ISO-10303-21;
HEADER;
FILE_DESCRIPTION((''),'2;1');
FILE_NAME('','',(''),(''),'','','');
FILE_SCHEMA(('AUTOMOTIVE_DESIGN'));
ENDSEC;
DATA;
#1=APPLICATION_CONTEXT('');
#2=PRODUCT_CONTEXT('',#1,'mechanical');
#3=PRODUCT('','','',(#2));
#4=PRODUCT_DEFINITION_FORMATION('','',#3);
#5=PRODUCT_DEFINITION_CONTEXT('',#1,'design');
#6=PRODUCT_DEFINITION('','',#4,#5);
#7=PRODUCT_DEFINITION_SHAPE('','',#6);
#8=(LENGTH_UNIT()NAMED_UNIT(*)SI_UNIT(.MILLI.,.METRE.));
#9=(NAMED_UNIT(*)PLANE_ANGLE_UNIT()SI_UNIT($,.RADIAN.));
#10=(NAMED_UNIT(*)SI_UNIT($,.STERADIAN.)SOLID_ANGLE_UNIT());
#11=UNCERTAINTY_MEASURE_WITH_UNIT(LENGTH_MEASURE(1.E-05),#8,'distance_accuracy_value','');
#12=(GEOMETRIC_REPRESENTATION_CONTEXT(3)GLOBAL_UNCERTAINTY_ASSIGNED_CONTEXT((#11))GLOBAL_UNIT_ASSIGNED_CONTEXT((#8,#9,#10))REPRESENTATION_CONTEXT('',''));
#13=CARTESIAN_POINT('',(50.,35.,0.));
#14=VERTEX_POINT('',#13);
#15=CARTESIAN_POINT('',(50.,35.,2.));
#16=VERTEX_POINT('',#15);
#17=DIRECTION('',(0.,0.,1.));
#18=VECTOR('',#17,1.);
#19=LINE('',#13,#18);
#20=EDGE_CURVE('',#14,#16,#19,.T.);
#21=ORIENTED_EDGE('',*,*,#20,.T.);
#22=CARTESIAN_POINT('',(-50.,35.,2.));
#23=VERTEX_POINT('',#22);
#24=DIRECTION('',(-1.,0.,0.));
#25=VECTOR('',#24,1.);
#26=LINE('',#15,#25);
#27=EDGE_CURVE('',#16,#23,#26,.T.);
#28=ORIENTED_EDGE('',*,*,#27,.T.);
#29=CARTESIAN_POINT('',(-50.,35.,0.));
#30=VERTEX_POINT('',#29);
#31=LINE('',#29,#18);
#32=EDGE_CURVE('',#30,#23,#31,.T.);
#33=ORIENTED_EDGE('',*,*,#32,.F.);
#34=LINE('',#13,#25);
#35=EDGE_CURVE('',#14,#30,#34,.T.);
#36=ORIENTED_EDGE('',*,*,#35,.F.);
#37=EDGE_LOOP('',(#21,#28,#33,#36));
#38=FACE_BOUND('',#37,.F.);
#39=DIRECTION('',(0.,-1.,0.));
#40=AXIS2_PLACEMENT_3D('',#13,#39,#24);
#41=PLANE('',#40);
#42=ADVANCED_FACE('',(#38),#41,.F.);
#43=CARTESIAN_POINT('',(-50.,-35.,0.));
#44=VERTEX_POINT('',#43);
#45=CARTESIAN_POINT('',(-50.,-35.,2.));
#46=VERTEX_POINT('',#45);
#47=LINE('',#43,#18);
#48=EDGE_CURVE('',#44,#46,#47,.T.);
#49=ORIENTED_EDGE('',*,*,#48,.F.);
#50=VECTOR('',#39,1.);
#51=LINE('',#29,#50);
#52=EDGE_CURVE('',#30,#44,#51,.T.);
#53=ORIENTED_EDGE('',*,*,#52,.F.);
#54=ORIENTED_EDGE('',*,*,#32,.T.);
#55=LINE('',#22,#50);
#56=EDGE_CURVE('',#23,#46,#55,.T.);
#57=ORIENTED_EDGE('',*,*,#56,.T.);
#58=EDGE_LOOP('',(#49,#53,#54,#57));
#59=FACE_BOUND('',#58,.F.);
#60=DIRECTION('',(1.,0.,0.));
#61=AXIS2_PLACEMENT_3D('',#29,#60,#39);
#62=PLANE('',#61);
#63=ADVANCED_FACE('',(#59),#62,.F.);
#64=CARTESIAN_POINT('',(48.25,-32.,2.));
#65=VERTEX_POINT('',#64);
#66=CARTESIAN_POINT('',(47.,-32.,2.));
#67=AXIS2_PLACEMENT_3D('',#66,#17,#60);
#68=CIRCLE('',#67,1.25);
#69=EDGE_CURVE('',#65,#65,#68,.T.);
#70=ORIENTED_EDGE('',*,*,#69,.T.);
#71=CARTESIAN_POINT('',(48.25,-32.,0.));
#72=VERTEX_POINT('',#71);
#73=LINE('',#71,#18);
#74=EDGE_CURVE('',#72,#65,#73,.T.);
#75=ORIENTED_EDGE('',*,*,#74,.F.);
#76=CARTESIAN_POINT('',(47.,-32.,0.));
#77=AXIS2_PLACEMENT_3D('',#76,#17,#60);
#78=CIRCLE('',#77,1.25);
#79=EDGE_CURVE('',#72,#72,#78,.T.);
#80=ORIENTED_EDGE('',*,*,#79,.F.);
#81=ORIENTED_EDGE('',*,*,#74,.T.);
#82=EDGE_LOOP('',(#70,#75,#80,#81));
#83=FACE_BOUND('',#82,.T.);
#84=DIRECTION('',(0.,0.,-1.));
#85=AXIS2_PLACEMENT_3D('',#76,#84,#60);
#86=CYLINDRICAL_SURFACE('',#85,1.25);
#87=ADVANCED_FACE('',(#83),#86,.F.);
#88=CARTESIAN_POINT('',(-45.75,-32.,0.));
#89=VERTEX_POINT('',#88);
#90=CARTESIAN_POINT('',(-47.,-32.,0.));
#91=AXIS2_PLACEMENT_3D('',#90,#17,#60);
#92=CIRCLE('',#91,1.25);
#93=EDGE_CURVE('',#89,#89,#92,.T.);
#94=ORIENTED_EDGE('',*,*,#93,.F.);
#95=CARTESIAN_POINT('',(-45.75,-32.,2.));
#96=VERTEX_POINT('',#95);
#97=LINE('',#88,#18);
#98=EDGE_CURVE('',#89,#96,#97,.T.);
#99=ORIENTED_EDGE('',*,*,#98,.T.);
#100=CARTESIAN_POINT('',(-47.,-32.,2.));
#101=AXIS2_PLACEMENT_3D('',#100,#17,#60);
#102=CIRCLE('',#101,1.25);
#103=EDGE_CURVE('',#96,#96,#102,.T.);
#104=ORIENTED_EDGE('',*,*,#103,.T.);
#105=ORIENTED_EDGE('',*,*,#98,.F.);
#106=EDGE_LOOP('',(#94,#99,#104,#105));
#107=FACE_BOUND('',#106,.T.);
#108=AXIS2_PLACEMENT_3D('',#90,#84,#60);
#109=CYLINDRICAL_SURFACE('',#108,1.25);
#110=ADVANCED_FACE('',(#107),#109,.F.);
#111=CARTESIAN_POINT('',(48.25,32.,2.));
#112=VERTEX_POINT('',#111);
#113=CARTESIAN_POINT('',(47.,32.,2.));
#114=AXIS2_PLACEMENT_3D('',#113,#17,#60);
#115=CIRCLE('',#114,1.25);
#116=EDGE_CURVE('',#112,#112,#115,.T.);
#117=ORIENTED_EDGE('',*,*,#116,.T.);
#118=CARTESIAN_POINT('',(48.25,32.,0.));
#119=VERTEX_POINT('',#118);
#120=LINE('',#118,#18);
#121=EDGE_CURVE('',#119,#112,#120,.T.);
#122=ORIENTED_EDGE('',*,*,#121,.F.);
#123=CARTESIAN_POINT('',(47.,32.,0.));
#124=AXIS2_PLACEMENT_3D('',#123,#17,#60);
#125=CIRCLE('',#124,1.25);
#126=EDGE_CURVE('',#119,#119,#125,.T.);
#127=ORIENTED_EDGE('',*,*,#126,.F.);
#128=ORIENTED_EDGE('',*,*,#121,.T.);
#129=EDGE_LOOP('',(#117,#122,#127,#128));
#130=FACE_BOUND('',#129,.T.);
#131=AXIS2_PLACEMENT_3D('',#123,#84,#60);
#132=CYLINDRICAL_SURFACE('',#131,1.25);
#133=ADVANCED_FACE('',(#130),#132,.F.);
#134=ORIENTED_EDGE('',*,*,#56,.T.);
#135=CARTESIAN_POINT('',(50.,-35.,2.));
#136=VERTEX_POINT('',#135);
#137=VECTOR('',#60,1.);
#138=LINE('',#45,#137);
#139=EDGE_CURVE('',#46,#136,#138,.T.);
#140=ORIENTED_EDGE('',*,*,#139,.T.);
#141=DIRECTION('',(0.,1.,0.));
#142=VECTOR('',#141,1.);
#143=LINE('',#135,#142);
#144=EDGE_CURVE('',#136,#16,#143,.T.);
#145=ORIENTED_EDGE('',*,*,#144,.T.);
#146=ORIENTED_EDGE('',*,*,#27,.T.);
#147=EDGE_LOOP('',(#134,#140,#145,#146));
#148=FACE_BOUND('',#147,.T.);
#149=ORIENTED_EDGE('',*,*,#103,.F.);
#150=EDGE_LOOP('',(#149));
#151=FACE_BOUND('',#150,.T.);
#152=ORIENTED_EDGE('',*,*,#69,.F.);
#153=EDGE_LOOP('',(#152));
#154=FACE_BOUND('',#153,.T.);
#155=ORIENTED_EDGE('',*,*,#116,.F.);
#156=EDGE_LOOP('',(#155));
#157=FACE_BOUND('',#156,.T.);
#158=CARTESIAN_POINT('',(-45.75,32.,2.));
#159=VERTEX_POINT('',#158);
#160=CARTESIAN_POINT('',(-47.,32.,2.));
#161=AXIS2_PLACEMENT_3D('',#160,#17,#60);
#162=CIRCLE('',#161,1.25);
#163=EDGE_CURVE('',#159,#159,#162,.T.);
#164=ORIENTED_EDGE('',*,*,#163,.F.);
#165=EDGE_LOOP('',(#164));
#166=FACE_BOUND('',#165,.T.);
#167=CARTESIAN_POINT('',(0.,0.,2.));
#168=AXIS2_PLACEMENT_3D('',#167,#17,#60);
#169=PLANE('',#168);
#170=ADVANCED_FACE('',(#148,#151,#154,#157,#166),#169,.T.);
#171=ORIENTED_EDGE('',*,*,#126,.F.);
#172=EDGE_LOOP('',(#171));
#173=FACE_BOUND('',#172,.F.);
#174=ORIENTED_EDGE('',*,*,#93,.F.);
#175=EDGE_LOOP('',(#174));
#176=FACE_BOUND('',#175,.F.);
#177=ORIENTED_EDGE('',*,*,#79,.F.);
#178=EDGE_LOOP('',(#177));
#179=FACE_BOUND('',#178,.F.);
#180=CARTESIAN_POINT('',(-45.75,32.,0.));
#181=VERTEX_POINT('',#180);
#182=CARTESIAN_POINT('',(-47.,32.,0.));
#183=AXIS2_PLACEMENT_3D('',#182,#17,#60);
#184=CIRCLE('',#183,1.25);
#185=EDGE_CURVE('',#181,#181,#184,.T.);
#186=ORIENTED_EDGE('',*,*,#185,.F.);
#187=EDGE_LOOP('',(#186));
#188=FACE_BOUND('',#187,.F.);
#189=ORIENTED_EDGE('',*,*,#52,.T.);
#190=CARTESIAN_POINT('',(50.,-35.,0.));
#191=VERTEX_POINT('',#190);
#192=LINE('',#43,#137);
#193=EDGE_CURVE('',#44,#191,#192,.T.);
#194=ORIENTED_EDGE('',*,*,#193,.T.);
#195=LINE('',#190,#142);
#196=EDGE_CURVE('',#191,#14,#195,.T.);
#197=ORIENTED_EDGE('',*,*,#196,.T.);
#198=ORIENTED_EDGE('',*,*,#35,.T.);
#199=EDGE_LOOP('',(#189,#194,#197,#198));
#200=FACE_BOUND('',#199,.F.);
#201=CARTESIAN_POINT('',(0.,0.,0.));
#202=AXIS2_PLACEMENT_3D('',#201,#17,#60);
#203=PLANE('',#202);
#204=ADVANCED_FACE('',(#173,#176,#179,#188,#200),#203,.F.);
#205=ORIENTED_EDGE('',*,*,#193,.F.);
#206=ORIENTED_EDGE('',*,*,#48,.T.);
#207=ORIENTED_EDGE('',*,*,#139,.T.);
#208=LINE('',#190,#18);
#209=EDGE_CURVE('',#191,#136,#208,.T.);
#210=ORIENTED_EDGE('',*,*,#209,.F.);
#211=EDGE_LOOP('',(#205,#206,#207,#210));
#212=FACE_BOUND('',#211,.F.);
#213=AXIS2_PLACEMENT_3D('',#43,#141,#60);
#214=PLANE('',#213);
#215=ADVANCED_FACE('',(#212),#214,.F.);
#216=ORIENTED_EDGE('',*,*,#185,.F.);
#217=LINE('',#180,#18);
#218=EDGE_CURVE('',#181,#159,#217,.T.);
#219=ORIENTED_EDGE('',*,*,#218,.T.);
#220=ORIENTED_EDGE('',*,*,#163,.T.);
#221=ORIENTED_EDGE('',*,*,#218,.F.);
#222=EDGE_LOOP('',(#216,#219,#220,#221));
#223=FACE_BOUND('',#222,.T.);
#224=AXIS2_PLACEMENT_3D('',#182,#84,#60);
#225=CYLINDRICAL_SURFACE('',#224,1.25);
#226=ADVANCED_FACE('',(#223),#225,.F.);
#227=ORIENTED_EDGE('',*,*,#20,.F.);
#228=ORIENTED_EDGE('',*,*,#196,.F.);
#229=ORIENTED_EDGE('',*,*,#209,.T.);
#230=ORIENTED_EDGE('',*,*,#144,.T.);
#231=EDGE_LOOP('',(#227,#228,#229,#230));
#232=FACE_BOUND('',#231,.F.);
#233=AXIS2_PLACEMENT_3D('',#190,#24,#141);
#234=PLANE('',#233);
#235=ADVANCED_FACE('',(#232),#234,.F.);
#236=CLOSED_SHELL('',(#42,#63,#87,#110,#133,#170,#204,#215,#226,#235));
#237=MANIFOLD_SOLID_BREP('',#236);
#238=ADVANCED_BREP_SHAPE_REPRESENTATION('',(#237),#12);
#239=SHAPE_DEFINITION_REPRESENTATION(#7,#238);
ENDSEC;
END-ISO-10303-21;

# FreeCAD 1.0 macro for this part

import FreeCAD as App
import Part
import Sketcher
from FreeCAD import Vector


def add_polygon(sketch, points):
    """Adds a closed chain of lines whose ends are joined by coincident constraints."""
    first, n = sketch.GeometryCount, len(points)
    for a, b in zip(points, points[1:] + points[:1]):
        sketch.addGeometry(Part.LineSegment(App.Vector(*a, 0), App.Vector(*b, 0)), False)
    for i in range(n):
        sketch.addConstraint(Sketcher.Constraint("Coincident", first + i, 2, first + (i + 1) % n, 1))

doc = App.newDocument("Part")
body = doc.addObject("PartDesign::Body", "Body")

# Sketch on XY plane
sketch1 = body.newObject("Sketcher::SketchObject", "Sketch")
sketch1.AttachmentSupport = (doc.getObject("XY_Plane"), [""])
sketch1.MapMode = "FlatFace"
add_polygon(sketch1, [(-50, 35), (-50, -35), (50, -35), (50, 35)])  # lines 0-3
sketch1.addGeometry(Part.Circle(Vector(-47, -32, 0), Vector(0, 0, 1), 1.2), False)  # 4
sketch1.addGeometry(Part.Circle(Vector(47, -32, 0), Vector(0, 0, 1), 1.2), False)  # 5
sketch1.addGeometry(Part.Circle(Vector(-47, 32, 0), Vector(0, 0, 1), 1.2), False)  # 6
sketch1.addGeometry(Part.Circle(Vector(47, 32, 0), Vector(0, 0, 1), 1.2), False)  # 7
sketch1.addConstraint([
    Sketcher.Constraint("Vertical", 0),
    Sketcher.Constraint("Horizontal", 1),
    Sketcher.Constraint("Vertical", 2),
    Sketcher.Constraint("Horizontal", 3),
    Sketcher.Constraint("Equal", 4, 5),
    Sketcher.Constraint("Equal", 5, 6),
    Sketcher.Constraint("Equal", 6, 7),
    Sketcher.Constraint("Symmetric", 5, 3, 6, 3, -1, 1),
    Sketcher.Constraint("Symmetric", 4, 3, 7, 3, -1, 1),
    Sketcher.Constraint("Symmetric", 0, 2, 2, 2, -1, 1),
    Sketcher.Constraint("Symmetric", 4, 3, 5, 3, -2),
    Sketcher.Constraint("Diameter", 4, 2.5),
    Sketcher.Constraint("DistanceX", 1, 1, 1, 2, 100.0),
    Sketcher.Constraint("DistanceY", 0, 2, 0, 1, 70.0),
    Sketcher.Constraint("DistanceX", 4, 3, 5, 3, 94.0),
    Sketcher.Constraint("DistanceY", 4, 3, 6, 3, 64.0),
])
pad1 = body.newObject("PartDesign::Pad", "Pad")
pad1.Profile = sketch1
pad1.Length = 2

doc.recompute()
